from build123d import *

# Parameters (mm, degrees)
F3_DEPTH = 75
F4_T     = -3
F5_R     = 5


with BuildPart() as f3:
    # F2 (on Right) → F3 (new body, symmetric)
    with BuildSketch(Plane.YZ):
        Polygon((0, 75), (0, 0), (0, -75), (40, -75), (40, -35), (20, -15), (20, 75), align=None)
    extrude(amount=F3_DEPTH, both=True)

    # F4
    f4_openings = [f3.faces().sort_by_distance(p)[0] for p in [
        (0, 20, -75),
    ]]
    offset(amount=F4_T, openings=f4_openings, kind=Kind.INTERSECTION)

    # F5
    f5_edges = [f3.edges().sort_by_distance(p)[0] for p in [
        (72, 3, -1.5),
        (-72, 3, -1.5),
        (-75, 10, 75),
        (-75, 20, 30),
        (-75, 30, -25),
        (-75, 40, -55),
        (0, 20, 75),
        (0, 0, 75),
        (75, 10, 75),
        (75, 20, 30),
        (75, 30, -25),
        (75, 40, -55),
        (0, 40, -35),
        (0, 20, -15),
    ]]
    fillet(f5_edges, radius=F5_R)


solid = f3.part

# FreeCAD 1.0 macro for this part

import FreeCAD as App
import Part
import Sketcher

V = App.Vector


def edges_at(feature, points):
    """Names of the edges that pass closest to the given points."""
    edges = feature.Shape.Edges
    near = lambda p: min(range(len(edges)), key=lambda i: edges[i].distToShape(Part.Vertex(*p))[0])
    return sorted({f"Edge{near(p) + 1}" for p in points})


def faces_at(feature, points):
    """Names of the faces that lie closest to the given points."""
    faces = feature.Shape.Faces
    near = lambda p: min(range(len(faces)), key=lambda i: faces[i].distToShape(Part.Vertex(*p))[0])
    return sorted({f"Face{near(p) + 1}" for p in points})

doc = App.newDocument("Part")
body = doc.addObject("PartDesign::Body", "Body")

# Sketch on YZ plane
sketch1 = body.newObject("Sketcher::SketchObject", "Sketch")
sketch1.AttachmentSupport = (doc.getObject("YZ_Plane"), [""])
sketch1.MapMode = "FlatFace"
sketch1.addGeometry([
    Part.LineSegment(V(0, 75, 0), V(0, -75, 0)),  # 0
    Part.LineSegment(V(0, -75, 0), V(40, -75, 0)),  # 1
    Part.LineSegment(V(40, -75, 0), V(40, -35, 0)),  # 2
    Part.LineSegment(V(40, -35, 0), V(20, -15, 0)),  # 3
    Part.LineSegment(V(20, -15, 0), V(20, 75, 0)),  # 4
    Part.LineSegment(V(20, 75, 0), V(0, 75, 0)),  # 5
], False)
sketch1.addConstraint([
    Sketcher.Constraint("Coincident", 0, 2, 1, 1),
    Sketcher.Constraint("Coincident", 1, 2, 2, 1),
    Sketcher.Constraint("Coincident", 2, 2, 3, 1),
    Sketcher.Constraint("Coincident", 3, 2, 4, 1),
    Sketcher.Constraint("Coincident", 4, 2, 5, 1),
    Sketcher.Constraint("Coincident", 5, 2, 0, 1),
    Sketcher.Constraint("Vertical", 0),
    Sketcher.Constraint("Horizontal", 1),
    Sketcher.Constraint("Vertical", 2),
    Sketcher.Constraint("Vertical", 4),
    Sketcher.Constraint("Horizontal", 5),
    Sketcher.Constraint("Symmetric", 0, 2, 5, 2, -1, 1),
    Sketcher.Constraint("Equal", 1, 2),
    Sketcher.Constraint("DistanceX", 1, 1, 1, 2, 40.0),
    Sketcher.Constraint("DistanceX", 5, 2, 5, 1, 20.0),
    Sketcher.Constraint("DistanceY", 0, 2, 0, 1, 150.0),
    Sketcher.Constraint("DistanceY", 4, 1, 4, 2, 90.0),
])
pad1 = body.newObject("PartDesign::Pad", "Pad")
pad1.Profile = sketch1
pad1.Length = 150
pad1.Midplane = True
doc.recompute()

thickness = body.newObject("PartDesign::Thickness", "Thickness")
thickness.Base = (pad1, faces_at(pad1, [(0, 20, -75)]))
thickness.Value = 3
thickness.Reversed = True
thickness.Join = "Intersection"
doc.recompute()

fillet = body.newObject("PartDesign::Fillet", "Fillet")
fillet.Base = (thickness, edges_at(thickness, [
    (72, 3, -1.5),
    (-72, 3, -1.5),
    (-75, 10, 75),
    (-75, 20, 30),
    (-75, 30, -25),
    (-75, 40, -55),
    (0, 20, 75),
    (0, 0, 75),
    (75, 10, 75),
    (75, 20, 30),
    (75, 30, -25),
    (75, 40, -55),
    (0, 40, -35),
    (0, 20, -15),
]))
fillet.Radius = 5

doc.recompute()
